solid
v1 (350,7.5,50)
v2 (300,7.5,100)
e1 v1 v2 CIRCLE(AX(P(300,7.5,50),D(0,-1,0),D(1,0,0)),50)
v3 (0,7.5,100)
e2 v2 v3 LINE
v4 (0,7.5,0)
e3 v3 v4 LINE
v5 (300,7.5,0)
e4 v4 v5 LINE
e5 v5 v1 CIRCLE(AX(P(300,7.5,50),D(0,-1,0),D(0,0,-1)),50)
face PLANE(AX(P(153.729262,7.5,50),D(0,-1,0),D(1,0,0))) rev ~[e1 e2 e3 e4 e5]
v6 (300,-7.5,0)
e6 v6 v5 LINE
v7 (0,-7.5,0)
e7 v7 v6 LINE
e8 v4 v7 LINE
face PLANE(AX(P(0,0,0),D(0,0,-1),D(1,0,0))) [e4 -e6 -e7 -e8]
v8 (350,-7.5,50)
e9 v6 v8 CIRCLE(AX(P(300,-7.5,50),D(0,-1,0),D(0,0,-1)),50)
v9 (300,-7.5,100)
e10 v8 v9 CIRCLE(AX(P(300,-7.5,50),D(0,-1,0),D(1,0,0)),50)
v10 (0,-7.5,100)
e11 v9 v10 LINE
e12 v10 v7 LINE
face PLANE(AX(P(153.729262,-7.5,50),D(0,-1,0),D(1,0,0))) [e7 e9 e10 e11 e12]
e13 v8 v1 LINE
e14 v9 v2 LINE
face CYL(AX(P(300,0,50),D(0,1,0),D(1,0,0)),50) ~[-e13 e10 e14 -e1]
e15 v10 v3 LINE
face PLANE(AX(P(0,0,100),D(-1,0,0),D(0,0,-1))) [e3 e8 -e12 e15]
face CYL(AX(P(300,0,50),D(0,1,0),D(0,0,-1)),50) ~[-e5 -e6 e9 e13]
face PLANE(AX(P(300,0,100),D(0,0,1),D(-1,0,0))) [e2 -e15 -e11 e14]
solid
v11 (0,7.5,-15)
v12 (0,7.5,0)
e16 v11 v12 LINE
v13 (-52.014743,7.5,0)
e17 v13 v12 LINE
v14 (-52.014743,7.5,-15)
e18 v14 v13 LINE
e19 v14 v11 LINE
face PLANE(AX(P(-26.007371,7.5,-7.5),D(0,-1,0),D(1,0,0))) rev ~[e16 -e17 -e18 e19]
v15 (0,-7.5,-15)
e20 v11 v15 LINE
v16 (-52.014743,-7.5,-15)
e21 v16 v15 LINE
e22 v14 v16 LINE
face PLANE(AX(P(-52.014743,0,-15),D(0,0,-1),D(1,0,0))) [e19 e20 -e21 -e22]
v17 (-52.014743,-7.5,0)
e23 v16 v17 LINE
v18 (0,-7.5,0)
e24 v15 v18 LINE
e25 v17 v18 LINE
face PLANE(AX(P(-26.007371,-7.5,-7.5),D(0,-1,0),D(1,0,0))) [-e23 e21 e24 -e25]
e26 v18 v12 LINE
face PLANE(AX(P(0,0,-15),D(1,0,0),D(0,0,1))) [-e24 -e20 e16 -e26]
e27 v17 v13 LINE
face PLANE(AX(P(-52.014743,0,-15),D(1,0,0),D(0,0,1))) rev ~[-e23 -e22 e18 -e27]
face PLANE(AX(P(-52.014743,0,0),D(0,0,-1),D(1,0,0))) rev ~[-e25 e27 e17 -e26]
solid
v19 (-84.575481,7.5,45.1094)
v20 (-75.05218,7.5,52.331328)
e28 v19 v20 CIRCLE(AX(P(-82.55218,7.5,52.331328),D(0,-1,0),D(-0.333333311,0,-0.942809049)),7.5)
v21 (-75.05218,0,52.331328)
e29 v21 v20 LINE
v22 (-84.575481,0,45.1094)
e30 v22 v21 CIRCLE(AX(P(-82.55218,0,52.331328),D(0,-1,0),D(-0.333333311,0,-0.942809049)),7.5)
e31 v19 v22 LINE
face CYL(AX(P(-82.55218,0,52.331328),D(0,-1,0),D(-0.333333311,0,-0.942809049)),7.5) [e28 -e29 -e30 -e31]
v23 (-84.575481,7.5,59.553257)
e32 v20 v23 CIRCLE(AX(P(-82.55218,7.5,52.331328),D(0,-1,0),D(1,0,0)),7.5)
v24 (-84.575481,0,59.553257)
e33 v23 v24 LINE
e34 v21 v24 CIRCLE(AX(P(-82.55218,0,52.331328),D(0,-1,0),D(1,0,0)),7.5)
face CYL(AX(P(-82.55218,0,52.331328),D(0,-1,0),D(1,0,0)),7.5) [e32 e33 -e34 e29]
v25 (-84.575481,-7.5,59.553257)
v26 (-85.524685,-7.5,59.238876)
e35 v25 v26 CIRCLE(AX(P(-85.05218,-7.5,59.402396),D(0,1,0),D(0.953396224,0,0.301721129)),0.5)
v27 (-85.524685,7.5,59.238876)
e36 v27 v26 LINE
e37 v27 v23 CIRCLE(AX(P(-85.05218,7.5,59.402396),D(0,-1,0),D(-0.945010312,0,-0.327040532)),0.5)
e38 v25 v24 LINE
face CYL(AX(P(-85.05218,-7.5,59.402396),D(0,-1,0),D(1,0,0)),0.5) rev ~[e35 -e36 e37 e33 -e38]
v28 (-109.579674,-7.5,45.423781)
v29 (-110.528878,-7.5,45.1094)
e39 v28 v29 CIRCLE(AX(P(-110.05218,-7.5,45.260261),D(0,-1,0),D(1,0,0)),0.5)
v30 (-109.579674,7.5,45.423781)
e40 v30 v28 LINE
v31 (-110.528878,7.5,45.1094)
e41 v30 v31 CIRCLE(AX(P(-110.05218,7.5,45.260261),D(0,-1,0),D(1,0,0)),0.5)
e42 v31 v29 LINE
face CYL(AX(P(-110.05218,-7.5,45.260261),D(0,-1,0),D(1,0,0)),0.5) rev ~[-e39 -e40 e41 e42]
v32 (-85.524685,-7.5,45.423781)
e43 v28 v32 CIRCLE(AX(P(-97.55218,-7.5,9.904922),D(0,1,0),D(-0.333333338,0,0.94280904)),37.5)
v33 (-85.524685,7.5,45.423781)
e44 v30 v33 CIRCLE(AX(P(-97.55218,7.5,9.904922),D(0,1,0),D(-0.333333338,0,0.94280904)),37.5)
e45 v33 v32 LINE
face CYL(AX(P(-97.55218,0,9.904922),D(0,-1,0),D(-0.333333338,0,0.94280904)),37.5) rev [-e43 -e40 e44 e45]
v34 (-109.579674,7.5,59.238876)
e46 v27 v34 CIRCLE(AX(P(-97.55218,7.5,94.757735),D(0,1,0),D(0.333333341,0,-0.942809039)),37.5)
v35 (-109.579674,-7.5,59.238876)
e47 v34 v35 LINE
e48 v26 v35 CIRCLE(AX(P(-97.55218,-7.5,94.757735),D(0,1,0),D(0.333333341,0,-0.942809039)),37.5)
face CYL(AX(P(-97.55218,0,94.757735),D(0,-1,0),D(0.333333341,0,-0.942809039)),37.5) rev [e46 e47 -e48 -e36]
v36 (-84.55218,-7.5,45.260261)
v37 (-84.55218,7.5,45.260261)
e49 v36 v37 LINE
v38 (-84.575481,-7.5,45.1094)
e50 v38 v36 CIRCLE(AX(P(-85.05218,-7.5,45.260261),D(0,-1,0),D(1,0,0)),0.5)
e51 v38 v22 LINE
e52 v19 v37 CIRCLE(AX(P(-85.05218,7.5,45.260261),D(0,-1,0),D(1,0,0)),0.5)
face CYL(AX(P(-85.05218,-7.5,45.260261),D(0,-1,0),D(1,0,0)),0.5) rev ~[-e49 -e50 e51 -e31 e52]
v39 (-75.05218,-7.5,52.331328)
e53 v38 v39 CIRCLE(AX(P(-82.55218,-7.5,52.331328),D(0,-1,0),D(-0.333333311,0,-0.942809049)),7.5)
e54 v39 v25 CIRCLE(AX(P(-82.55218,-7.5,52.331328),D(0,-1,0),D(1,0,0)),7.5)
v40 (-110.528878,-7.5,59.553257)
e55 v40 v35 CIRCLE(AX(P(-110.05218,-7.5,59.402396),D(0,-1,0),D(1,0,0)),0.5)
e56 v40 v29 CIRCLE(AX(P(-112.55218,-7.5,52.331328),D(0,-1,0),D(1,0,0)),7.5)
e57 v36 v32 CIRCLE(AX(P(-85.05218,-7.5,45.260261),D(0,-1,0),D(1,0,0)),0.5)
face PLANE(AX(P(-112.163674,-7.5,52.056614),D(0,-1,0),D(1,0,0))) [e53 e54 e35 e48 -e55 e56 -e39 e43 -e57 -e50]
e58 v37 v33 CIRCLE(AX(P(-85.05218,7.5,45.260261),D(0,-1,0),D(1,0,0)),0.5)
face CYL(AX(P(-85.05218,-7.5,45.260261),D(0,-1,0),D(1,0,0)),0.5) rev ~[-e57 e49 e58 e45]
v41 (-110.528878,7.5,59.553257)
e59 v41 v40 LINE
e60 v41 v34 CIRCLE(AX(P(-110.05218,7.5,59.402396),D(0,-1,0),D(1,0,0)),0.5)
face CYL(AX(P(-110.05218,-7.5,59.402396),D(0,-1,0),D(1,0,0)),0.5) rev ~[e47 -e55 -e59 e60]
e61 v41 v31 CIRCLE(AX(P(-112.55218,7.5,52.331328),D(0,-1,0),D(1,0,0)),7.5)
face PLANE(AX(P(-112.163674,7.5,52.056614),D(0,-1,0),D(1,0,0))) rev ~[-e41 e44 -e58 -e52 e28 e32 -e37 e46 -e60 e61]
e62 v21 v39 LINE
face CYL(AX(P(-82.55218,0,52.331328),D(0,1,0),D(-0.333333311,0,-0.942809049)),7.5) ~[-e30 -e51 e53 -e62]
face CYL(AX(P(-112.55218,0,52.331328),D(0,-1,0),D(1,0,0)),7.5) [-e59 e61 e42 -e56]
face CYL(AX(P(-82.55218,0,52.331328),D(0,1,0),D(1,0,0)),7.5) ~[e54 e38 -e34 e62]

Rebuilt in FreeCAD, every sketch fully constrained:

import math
import FreeCAD as App
import Part
import Sketcher

V = App.Vector
Q = App.Units.Quantity

doc = App.newDocument("Part")
params = doc.addObject("Spreadsheet::Sheet", "Params")
for row, (alias, value) in enumerate([
    ("sketch1_radius", "50 mm"),
    ("sketch1_width", "300 mm"),
    ("pad1_length", "15 mm"),
    ("sketch2_height", "15 mm"),
    ("pad2_length", "15 mm"),
    ("sketch3_radius", "7.5 mm"),
    ("sketch3_radius2", "37.5 mm"),
    ("pad3_length", "15 mm"),
    ("sketch4_diameter", "1 mm"),
    ("pocket1_length", "25 mm"),
], start=1):
    params.set(f"A{row}", alias)
    params.set(f"B{row}", "=" + value)
    params.setAlias(f"B{row}", alias)

body = doc.addObject("PartDesign::Body", "Body")

# Sketch on XZ plane
sketch1 = body.newObject("Sketcher::SketchObject", "Sketch")
sketch1.AttachmentSupport = (doc.getObject("XZ_Plane"), [""])
sketch1.MapMode = "FlatFace"
sketch1.addGeometry([
    Part.LineSegment(V(0, 100, 0), V(0, 0, 0)),  # 0
    Part.LineSegment(V(0, 0, 0), V(300, 0, 0)),  # 1
    Part.ArcOfCircle(Part.Circle(V(300, 50, 0), V(0, 0, 1), 50), math.radians(-90), math.radians(0)),  # 2
    Part.ArcOfCircle(Part.Circle(V(300, 50, 0), V(0, 0, 1), 50), math.radians(0), math.radians(90)),  # 3
    Part.LineSegment(V(300, 100, 0), V(0, 100, 0)),  # 4
], False)
sketch1.addConstraint([
    Sketcher.Constraint("Coincident", 0, 2, 1, 1),
    Sketcher.Constraint("Tangent", 1, 2, 2, 1),
    Sketcher.Constraint("Tangent", 2, 2, 3, 1),
    Sketcher.Constraint("Tangent", 3, 2, 4, 1),
    Sketcher.Constraint("Coincident", 4, 2, 0, 1),
    Sketcher.Constraint("Vertical", 0),
    Sketcher.Constraint("Horizontal", 1),
    Sketcher.Constraint("Horizontal", 4),
    Sketcher.Constraint("Coincident", 0, 2, -1, 1),
    Sketcher.Constraint("Equal", 2, 3),
    Sketcher.Constraint("Horizontal", 3, 3, 2, 2),
    Sketcher.Constraint("Radius", 2, Q("50 mm")),
    Sketcher.Constraint("DistanceX", 1, 1, 1, 2, Q("300 mm")),
])
sketch1.setExpression("Constraints[11]", "Params.sketch1_radius")
sketch1.setExpression("Constraints[12]", "Params.sketch1_width")
pad1 = body.newObject("PartDesign::Pad", "Pad")
pad1.Profile = sketch1
pad1.setExpression("Length", "Params.pad1_length")
pad1.Midplane = True
body2 = doc.addObject("PartDesign::Body", "Body001")

# Sketch on XZ plane
sketch2 = body2.newObject("Sketcher::SketchObject", "Sketch001")
sketch2.AttachmentSupport = (doc.getObject("XZ_Plane001"), [""])
sketch2.MapMode = "FlatFace"
sketch2.addGeometry([
    Part.LineSegment(V(-52.014743, 0, 0), V(-52.014743, -15, 0)),
    Part.LineSegment(V(-52.014743, -15, 0), V(0, -15, 0)),
    Part.LineSegment(V(0, -15, 0), V(0, 0, 0)),
    Part.LineSegment(V(0, 0, 0), V(-52.014743, 0, 0)),
], False)
sketch2.addConstraint([
    Sketcher.Constraint("Coincident", 0, 2, 1, 1),
    Sketcher.Constraint("Coincident", 1, 2, 2, 1),
    Sketcher.Constraint("Coincident", 2, 2, 3, 1),
    Sketcher.Constraint("Coincident", 3, 2, 0, 1),
    Sketcher.Constraint("Vertical", 0),
    Sketcher.Constraint("Horizontal", 1),
    Sketcher.Constraint("Vertical", 2),
    Sketcher.Constraint("Horizontal", 3),
    Sketcher.Constraint("Coincident", 2, 2, -1, 1),
    Sketcher.Constraint("DistanceY", 0, 2, 0, 1, Q("15 mm")),
    Sketcher.Constraint("DistanceX", 1, 1, 1, 2, Q("52.014743 mm")),
])
sketch2.setExpression("Constraints[9]", "Params.sketch2_height")
pad2 = body2.newObject("PartDesign::Pad", "Pad001")
pad2.Profile = sketch2
pad2.setExpression("Length", "Params.pad2_length")
pad2.Midplane = True
body3 = doc.addObject("PartDesign::Body", "Body002")

# Sketch on XZ plane
sketch3 = body3.newObject("Sketcher::SketchObject", "Sketch002")
sketch3.AttachmentSupport = (doc.getObject("XZ_Plane002"), [""])
sketch3.MapMode = "FlatFace"
sketch3.addGeometry([
    Part.ArcOfCircle(Part.Circle(V(-112.55218, 52.331328, 0), V(0, 0, 1), 7.5), math.radians(70.528781), math.radians(289.471219)),  # 0
    Part.ArcOfCircle(Part.Circle(V(-97.55218, 9.904922, 0), V(0, 0, 1), 37.5), math.radians(70.528779), math.radians(109.471221)),  # 1
    Part.ArcOfCircle(Part.Circle(V(-82.55218, 52.331328, 0), V(0, 0, 1), 7.5), math.radians(-109.471219), math.radians(0)),  # 2
    Part.ArcOfCircle(Part.Circle(V(-82.55218, 52.331328, 0), V(0, 0, 1), 7.5), math.radians(0), math.radians(109.471218)),  # 3
    Part.ArcOfCircle(Part.Circle(V(-97.55218, 94.757735, 0), V(0, 0, 1), 37.5), math.radians(-109.471221), math.radians(-70.528779)),  # 4
], False)
sketch3.addConstraint([
    Sketcher.Constraint("Tangent", 0, 2, 1, 2),
    Sketcher.Constraint("Tangent", 1, 1, 2, 1),
    Sketcher.Constraint("Tangent", 2, 2, 3, 1),
    Sketcher.Constraint("Tangent", 3, 2, 4, 2),
    Sketcher.Constraint("Tangent", 4, 1, 0, 1),
    Sketcher.Constraint("Equal", 0, 2),
    Sketcher.Constraint("Equal", 2, 3),
    Sketcher.Constraint("Equal", 1, 4),
    Sketcher.Constraint("Horizontal", 0, 3, 2, 3),
    Sketcher.Constraint("Horizontal", 3, 3, 2, 2),
    Sketcher.Constraint("Radius", 0, Q("7.5 mm")),
    Sketcher.Constraint("Radius", 1, Q("37.5 mm")),
    Sketcher.Constraint("DistanceX", 0, 3, 1, 3, Q("15 mm")),
    Sketcher.Constraint("DistanceX", 0, 3, -1, 1, Q("112.55218 mm")),
    Sketcher.Constraint("DistanceY", -1, 1, 0, 3, Q("52.331328 mm")),
])
sketch3.setExpression("Constraints[10]", "Params.sketch3_radius")
sketch3.setExpression("Constraints[11]", "Params.sketch3_radius2")
pad3 = body3.newObject("PartDesign::Pad", "Pad002")
pad3.Profile = sketch3
pad3.setExpression("Length", "Params.pad3_length")
pad3.Midplane = True

# Sketch on XZ plane
sketch4 = body3.newObject("Sketcher::SketchObject", "Sketch003")
sketch4.AttachmentSupport = (doc.getObject("XZ_Plane002"), [""])
sketch4.MapMode = "FlatFace"
sketch4.AttachmentOffset = App.Placement(V(0, 0, 7.5), App.Rotation())
sketch4.addGeometry([
    Part.Circle(V(-110.05218, 59.402396, 0), V(0, 0, 1), 0.5),
    Part.Circle(V(-85.05218, 59.402396, 0), V(0, 0, 1), 0.5),
    Part.Circle(V(-85.05218, 45.260261, 0), V(0, 0, 1), 0.5),
    Part.Circle(V(-110.05218, 45.260261, 0), V(0, 0, 1), 0.5),
], False)
sketch4.addConstraint([
    Sketcher.Constraint("Equal", 0, 1),
    Sketcher.Constraint("Equal", 1, 2),
    Sketcher.Constraint("Equal", 2, 3),
    Sketcher.Constraint("Horizontal", 0, 3, 1, 3),
    Sketcher.Constraint("Horizontal", 2, 3, 3, 3),
    Sketcher.Constraint("Vertical", 1, 3, 2, 3),
    Sketcher.Constraint("Vertical", 0, 3, 3, 3),
    Sketcher.Constraint("Diameter", 0, Q("1 mm")),
    Sketcher.Constraint("DistanceX", 0, 3, 1, 3, Q("25 mm")),
    Sketcher.Constraint("DistanceX", 0, 3, -1, 1, Q("110.05218 mm")),
    Sketcher.Constraint("DistanceY", -1, 1, 2, 3, Q("45.260261 mm")),
    Sketcher.Constraint("DistanceY", -1, 1, 0, 3, Q("59.402396 mm")),
])
sketch4.setExpression("Constraints[7]", "Params.sketch4_diameter")
pocket1 = body3.newObject("PartDesign::Pocket", "Pocket")
pocket1.Profile = sketch4
pocket1.setExpression("Length", "Params.pocket1_length")

doc.recompute()
